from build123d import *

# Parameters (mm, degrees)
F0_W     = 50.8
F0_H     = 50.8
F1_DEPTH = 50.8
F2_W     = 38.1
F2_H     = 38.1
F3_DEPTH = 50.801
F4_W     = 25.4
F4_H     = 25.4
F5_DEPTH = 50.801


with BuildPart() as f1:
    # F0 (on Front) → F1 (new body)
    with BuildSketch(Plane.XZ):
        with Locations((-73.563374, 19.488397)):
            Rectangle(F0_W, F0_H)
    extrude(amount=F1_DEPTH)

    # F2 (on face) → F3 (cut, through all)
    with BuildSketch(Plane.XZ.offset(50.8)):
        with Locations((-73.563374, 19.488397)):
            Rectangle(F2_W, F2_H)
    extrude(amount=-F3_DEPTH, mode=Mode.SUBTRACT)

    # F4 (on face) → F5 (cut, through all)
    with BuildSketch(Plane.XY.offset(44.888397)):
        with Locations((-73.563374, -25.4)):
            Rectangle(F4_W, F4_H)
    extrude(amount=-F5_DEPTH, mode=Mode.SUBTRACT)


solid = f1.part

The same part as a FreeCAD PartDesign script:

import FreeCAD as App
import Part
import Sketcher
Q = App.Units.Quantity

doc = App.newDocument("Part")
body = doc.addObject("PartDesign::Body", "Body")

sketch1 = body.newObject("Sketcher::SketchObject", "Sketch")
sketch1.AttachmentSupport = (doc.getObject("XZ_Plane"), [""])
sketch1.MapMode = "FlatFace"
sketch1.addGeometry([
    Part.LineSegment(App.Vector(-99, 45, 0), App.Vector(-99, -6, 0)),
    Part.LineSegment(App.Vector(-99, -6, 0), App.Vector(-48, -6, 0)),
    Part.LineSegment(App.Vector(-48, -6, 0), App.Vector(-48, 45, 0)),
    Part.LineSegment(App.Vector(-48, 45, 0), App.Vector(-99, 45, 0)),
], False)
sketch1.addConstraint([
    Sketcher.Constraint("Coincident", 0, 2, 1, 1),
    Sketcher.Constraint("Coincident", 1, 2, 2, 1),
    Sketcher.Constraint("Coincident", 2, 2, 3, 1),
    Sketcher.Constraint("Coincident", 3, 2, 0, 1),
    Sketcher.Constraint("Vertical", 0),
    Sketcher.Constraint("Horizontal", 1),
    Sketcher.Constraint("Vertical", 2),
    Sketcher.Constraint("Horizontal", 3),
    Sketcher.Constraint("Equal", 3, 0),
    Sketcher.Constraint("DistanceX", 1, 1, 1, 2, Q("2 in")),
    Sketcher.Constraint("DistanceX", 0, 2, -1, 1, 98.963374),
    Sketcher.Constraint("DistanceY", 0, 2, -1, 1, 5.911603),
])
pad1 = body.newObject("PartDesign::Pad", "Pad")
pad1.Profile = sketch1
pad1.Length = Q("2 in")

sketch2 = body.newObject("Sketcher::SketchObject", "Sketch001")
sketch2.AttachmentSupport = (doc.getObject("XZ_Plane"), [""])
sketch2.MapMode = "FlatFace"
sketch2.AttachmentOffset = App.Placement(App.Vector(0, 0, 2 * 25.4), App.Rotation())
sketch2.addGeometry([
    Part.LineSegment(App.Vector(-93, 39, 0), App.Vector(-93, 0, 0)),
    Part.LineSegment(App.Vector(-93, 0, 0), App.Vector(-55, 0, 0)),
    Part.LineSegment(App.Vector(-55, 0, 0), App.Vector(-55, 39, 0)),
    Part.LineSegment(App.Vector(-55, 39, 0), App.Vector(-93, 39, 0)),
], False)
sketch2.addConstraint([
    Sketcher.Constraint("Coincident", 0, 2, 1, 1),
    Sketcher.Constraint("Coincident", 1, 2, 2, 1),
    Sketcher.Constraint("Coincident", 2, 2, 3, 1),
    Sketcher.Constraint("Coincident", 3, 2, 0, 1),
    Sketcher.Constraint("Vertical", 0),
    Sketcher.Constraint("Horizontal", 1),
    Sketcher.Constraint("Vertical", 2),
    Sketcher.Constraint("Horizontal", 3),
    Sketcher.Constraint("Equal", 3, 0),
    Sketcher.Constraint("DistanceX", 1, 1, 1, 2, Q("1.5 in")),
    Sketcher.Constraint("DistanceX", 0, 2, -1, 1, 92.613374),
    Sketcher.Constraint("DistanceY", -1, 1, 0, 2, 0.438397),
])
pocket1 = body.newObject("PartDesign::Pocket", "Pocket")
pocket1.Profile = sketch2
pocket1.Type = "ThroughAll"

sketch3 = body.newObject("Sketcher::SketchObject", "Sketch002")
sketch3.AttachmentSupport = (doc.getObject("XY_Plane"), [""])
sketch3.MapMode = "FlatFace"
sketch3.AttachmentOffset = App.Placement(App.Vector(0, 0, 44.888397), App.Rotation())
sketch3.addGeometry([
    Part.LineSegment(App.Vector(-86, -13, 0), App.Vector(-86, -38, 0)),
    Part.LineSegment(App.Vector(-86, -38, 0), App.Vector(-61, -38, 0)),
    Part.LineSegment(App.Vector(-61, -38, 0), App.Vector(-61, -13, 0)),
    Part.LineSegment(App.Vector(-61, -13, 0), App.Vector(-86, -13, 0)),
], False)
sketch3.addConstraint([
    Sketcher.Constraint("Coincident", 0, 2, 1, 1),
    Sketcher.Constraint("Coincident", 1, 2, 2, 1),
    Sketcher.Constraint("Coincident", 2, 2, 3, 1),
    Sketcher.Constraint("Coincident", 3, 2, 0, 1),
    Sketcher.Constraint("Vertical", 0),
    Sketcher.Constraint("Horizontal", 1),
    Sketcher.Constraint("Vertical", 2),
    Sketcher.Constraint("Horizontal", 3),
    Sketcher.Constraint("Equal", 3, 0),
    Sketcher.Constraint("DistanceX", 1, 1, 1, 2, Q("1 in")),
    Sketcher.Constraint("DistanceY", 0, 2, -1, 1, Q("1.5 in")),
    Sketcher.Constraint("DistanceX", 0, 2, -1, 1, 86.263374),
])
pocket2 = body.newObject("PartDesign::Pocket", "Pocket001")
pocket2.Profile = sketch3
pocket2.Type = "ThroughAll"

doc.recompute()
